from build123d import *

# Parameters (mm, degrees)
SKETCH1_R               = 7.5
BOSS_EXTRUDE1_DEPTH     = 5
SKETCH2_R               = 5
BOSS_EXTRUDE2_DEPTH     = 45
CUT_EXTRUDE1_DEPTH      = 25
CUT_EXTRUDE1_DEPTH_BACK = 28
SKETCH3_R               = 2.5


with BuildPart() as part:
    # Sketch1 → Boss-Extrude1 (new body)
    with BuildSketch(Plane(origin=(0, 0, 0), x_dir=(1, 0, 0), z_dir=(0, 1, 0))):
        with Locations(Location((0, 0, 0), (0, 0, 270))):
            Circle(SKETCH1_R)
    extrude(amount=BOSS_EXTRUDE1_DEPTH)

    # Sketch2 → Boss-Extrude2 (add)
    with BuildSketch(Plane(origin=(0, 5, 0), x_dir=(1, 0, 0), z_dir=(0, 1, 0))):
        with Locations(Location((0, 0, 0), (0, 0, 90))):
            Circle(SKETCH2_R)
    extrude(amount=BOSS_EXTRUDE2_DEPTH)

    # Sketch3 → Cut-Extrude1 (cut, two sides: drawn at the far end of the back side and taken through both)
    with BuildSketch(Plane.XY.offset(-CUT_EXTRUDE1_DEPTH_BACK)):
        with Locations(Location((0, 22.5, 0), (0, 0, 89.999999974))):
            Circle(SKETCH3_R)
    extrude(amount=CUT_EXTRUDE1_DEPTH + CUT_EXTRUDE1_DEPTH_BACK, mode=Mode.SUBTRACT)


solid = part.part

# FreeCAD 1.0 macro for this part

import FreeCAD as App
import Part
import Sketcher
from FreeCAD import Vector
Q = App.Units.Quantity

doc = App.newDocument("Part")
body = doc.addObject("PartDesign::Body", "Body")

# Sketch on XZ plane
sketch1 = doc.addObject("Sketcher::SketchObject", "Sketch")
body.addObject(sketch1)
sketch1.AttachmentSupport = (doc.XZ_Plane, [""])
sketch1.MapMode = "FlatFace"
sketch1.addGeometry(Part.Circle(Vector(0, 0, 0), Vector(0, 0, 1), 8), False)
sketch1.addConstraint([
    Sketcher.Constraint("Coincident", 0, 3, -1, 1),
    Sketcher.Constraint("Diameter", 0, Q("15 mm")),
])
pad1 = doc.addObject("PartDesign::Pad", "Pad")
body.addObject(pad1)
pad1.Profile = sketch1
pad1.Length = 5
pad1.Reversed = True

# Sketch on XZ plane
sketch2 = doc.addObject("Sketcher::SketchObject", "Sketch001")
body.addObject(sketch2)
sketch2.AttachmentSupport = (doc.XZ_Plane, [""])
sketch2.MapMode = "FlatFace"
sketch2.AttachmentOffset = App.Placement(Vector(0, 0, -5), App.Rotation())
sketch2.addGeometry(Part.Circle(Vector(0, 0, 0), Vector(0, 0, 1), 5), False)
sketch2.addConstraint([
    Sketcher.Constraint("Coincident", 0, 3, -1, 1),
    Sketcher.Constraint("Diameter", 0, Q("10 mm")),
])
pad2 = doc.addObject("PartDesign::Pad", "Pad001")
body.addObject(pad2)
pad2.Profile = sketch2
pad2.Length = 45
pad2.Reversed = True

# Sketch on XY plane
sketch3 = doc.addObject("Sketcher::SketchObject", "Sketch002")
body.addObject(sketch3)
sketch3.AttachmentSupport = (doc.XY_Plane, [""])
sketch3.MapMode = "FlatFace"
sketch3.addGeometry(Part.Circle(Vector(0, 22.5, 0), Vector(0, 0, 1), 2.5), False)
sketch3.addConstraint([
    Sketcher.Constraint("PointOnObject", 0, 3, -2),
    Sketcher.Constraint("Diameter", 0, Q("5 mm")),
    Sketcher.Constraint("DistanceY", -1, 1, 0, 3, Q("22.5 mm")),
])
pocket1 = doc.addObject("PartDesign::Pocket", "Pocket")
body.addObject(pocket1)
pocket1.Profile = sketch3
pocket1.Type = "ThroughAll"
pocket1.Midplane = True

doc.recompute()
